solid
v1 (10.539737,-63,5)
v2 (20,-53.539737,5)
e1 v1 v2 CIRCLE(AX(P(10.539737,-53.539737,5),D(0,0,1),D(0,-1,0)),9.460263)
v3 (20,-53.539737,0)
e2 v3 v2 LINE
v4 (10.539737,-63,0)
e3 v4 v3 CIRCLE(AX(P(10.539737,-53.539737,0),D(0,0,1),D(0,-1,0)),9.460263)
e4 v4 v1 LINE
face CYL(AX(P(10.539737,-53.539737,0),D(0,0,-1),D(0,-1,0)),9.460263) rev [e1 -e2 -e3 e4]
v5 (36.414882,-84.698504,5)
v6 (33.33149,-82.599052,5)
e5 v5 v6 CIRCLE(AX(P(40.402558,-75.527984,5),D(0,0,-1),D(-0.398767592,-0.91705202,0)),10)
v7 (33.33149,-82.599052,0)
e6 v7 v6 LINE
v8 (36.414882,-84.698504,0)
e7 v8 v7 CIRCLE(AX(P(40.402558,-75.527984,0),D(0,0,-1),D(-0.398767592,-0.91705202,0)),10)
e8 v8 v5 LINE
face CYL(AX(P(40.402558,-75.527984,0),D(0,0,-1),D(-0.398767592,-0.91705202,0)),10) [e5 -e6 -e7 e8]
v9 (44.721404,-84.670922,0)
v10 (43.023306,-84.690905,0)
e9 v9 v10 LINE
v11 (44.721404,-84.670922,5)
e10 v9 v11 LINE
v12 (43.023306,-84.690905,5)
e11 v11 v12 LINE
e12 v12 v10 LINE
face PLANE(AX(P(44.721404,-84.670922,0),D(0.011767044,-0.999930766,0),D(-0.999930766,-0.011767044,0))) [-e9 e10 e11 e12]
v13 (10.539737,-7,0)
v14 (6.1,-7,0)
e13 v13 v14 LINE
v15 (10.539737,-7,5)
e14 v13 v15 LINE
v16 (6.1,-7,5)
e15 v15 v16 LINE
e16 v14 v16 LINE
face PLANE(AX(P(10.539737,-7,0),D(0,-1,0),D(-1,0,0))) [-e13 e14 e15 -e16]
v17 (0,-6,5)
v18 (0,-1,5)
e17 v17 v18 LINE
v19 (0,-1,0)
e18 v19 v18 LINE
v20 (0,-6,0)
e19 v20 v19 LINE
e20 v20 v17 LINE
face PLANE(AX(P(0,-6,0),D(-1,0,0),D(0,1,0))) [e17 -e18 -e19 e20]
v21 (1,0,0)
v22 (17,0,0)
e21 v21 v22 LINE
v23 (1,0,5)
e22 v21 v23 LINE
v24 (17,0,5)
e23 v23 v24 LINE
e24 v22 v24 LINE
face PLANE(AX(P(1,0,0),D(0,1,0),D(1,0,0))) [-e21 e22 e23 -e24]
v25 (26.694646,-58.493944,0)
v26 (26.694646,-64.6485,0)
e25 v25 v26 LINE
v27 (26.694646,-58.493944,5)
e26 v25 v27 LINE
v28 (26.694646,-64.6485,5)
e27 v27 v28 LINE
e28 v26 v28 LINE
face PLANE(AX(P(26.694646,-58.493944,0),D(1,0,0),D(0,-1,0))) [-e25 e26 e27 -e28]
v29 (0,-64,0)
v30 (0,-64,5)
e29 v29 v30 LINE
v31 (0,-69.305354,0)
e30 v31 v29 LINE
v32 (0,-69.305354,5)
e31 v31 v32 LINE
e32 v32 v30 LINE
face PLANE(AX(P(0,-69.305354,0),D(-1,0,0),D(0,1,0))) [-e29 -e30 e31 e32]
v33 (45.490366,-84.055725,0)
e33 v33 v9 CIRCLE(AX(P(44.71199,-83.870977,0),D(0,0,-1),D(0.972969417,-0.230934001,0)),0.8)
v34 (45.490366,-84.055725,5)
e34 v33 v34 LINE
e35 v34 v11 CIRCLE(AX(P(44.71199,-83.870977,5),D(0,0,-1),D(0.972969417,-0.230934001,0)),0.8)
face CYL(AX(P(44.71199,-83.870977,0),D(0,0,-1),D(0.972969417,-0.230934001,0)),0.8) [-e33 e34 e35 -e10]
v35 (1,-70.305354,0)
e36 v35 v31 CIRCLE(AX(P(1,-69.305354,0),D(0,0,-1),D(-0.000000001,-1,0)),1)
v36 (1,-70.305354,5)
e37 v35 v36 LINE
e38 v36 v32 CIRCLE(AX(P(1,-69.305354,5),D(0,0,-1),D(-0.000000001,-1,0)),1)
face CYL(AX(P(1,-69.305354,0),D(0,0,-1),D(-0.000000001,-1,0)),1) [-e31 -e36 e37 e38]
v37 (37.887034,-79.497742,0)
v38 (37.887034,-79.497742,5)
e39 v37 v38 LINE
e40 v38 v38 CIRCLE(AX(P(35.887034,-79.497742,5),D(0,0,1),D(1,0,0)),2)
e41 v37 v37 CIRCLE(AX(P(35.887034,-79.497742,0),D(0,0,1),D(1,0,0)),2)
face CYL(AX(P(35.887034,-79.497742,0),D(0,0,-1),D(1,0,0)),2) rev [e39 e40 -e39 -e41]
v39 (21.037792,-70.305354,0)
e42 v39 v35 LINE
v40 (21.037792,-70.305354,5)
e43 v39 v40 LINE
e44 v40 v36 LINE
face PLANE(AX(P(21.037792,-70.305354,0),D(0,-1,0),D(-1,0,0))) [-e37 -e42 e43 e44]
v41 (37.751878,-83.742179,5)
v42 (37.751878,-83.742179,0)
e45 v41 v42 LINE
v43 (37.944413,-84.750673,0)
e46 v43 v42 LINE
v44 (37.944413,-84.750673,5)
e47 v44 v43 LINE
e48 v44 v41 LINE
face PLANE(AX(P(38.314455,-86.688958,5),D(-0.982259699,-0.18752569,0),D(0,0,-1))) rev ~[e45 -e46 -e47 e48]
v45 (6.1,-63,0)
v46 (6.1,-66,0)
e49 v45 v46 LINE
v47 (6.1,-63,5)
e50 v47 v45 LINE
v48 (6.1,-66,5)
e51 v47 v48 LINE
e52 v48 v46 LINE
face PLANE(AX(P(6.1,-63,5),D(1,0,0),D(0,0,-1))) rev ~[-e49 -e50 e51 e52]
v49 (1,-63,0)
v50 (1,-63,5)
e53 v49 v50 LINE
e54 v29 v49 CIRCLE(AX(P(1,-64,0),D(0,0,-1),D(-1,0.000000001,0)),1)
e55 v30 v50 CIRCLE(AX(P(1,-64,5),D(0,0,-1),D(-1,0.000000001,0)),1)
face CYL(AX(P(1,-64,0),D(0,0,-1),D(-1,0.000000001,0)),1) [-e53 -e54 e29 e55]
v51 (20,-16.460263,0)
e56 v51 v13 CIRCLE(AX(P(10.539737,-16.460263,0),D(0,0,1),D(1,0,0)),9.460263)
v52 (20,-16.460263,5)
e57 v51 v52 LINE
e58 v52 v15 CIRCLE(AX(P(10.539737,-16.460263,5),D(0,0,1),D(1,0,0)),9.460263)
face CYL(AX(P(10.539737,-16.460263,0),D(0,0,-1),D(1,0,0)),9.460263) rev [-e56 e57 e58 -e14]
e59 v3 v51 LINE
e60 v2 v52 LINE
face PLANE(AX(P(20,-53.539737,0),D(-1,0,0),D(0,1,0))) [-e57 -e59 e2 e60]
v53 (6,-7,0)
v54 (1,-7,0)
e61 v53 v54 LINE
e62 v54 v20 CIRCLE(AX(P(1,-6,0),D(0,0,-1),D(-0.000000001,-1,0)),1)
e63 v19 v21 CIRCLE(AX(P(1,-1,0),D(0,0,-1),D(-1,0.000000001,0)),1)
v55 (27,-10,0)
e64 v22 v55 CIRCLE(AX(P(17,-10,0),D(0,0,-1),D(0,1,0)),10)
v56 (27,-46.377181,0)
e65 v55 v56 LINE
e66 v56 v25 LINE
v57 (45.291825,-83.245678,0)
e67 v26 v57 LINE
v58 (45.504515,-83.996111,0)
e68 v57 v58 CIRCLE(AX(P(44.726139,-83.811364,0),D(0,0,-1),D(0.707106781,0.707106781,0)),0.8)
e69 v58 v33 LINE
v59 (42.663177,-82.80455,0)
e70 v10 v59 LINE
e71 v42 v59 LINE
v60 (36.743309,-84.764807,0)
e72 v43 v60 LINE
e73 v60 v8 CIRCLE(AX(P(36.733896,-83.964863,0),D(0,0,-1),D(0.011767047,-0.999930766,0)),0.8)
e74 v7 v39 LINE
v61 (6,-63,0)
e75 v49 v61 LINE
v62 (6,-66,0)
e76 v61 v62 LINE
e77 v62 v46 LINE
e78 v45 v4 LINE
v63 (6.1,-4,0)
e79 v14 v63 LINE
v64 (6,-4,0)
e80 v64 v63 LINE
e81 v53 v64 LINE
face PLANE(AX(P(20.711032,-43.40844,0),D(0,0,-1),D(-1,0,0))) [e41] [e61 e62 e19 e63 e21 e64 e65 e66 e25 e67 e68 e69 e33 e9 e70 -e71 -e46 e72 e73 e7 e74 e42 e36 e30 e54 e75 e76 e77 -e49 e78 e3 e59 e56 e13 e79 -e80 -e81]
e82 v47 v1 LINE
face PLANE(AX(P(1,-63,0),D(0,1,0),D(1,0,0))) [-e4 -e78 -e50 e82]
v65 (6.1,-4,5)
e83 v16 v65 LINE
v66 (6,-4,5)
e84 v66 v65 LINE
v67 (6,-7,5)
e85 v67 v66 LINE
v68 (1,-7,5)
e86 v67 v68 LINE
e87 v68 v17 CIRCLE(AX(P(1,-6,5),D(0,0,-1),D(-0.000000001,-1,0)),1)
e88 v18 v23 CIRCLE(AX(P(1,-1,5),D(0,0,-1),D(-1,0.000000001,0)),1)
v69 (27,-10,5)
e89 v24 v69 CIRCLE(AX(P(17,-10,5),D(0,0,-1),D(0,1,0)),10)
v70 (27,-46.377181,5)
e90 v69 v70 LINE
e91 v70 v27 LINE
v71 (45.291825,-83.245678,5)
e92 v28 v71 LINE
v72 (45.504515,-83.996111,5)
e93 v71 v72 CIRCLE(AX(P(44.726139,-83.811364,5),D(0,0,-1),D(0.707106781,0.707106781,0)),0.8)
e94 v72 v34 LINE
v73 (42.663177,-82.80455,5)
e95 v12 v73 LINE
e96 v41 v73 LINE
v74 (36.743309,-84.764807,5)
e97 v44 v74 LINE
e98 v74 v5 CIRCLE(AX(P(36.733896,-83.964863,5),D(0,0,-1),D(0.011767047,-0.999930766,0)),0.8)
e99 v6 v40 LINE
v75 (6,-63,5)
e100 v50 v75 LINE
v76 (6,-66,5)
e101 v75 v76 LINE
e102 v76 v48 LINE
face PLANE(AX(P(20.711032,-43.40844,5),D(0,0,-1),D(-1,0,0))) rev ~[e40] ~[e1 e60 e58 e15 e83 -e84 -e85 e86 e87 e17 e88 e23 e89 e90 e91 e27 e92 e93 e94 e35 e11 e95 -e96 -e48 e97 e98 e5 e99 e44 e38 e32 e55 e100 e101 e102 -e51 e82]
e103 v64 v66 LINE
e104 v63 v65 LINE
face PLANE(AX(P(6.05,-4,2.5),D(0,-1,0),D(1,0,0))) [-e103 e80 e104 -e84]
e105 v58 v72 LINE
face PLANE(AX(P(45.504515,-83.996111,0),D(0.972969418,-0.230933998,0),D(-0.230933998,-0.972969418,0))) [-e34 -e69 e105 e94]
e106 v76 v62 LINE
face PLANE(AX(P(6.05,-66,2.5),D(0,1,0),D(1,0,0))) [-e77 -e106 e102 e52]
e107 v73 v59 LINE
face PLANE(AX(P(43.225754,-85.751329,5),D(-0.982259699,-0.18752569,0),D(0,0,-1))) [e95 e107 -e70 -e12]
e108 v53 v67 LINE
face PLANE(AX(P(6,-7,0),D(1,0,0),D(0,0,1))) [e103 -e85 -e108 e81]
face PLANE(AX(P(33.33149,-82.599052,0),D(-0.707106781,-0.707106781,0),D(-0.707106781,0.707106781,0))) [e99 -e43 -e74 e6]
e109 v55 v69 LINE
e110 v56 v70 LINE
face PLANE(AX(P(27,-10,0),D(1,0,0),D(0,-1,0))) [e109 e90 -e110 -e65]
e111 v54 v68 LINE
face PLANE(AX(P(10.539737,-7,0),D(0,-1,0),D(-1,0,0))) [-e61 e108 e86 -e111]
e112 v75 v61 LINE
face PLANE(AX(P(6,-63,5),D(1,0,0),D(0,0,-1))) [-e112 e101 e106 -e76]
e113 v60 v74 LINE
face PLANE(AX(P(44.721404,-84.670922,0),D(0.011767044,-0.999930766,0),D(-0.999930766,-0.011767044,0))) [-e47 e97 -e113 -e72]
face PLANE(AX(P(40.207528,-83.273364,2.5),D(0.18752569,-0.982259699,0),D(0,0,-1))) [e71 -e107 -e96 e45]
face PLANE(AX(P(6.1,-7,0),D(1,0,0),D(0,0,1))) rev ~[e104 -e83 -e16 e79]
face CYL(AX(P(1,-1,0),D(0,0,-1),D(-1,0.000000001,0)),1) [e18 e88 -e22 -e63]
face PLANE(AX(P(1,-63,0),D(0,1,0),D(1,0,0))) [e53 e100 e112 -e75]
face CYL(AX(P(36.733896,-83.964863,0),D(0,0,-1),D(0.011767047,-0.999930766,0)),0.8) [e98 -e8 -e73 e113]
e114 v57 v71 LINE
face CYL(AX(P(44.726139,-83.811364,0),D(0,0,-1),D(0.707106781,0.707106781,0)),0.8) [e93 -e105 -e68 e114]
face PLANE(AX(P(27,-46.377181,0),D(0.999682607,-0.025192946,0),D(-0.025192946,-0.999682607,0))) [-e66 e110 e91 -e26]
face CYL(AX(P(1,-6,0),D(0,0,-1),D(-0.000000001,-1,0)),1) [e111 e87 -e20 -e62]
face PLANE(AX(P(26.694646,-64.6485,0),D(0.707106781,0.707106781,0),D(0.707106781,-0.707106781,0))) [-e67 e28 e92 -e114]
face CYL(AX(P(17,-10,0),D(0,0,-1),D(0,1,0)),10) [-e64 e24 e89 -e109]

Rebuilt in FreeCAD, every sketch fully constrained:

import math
import FreeCAD as App
import Part
import Sketcher
from FreeCAD import Vector
Q = App.Units.Quantity


def add_polygon(sketch, points):
    """Adds a closed chain of lines whose ends are joined by coincident constraints."""
    first, n = sketch.GeometryCount, len(points)
    for a, b in zip(points, points[1:] + points[:1]):
        sketch.addGeometry(Part.LineSegment(App.Vector(*a, 0), App.Vector(*b, 0)), False)
    for i in range(n):
        sketch.addConstraint(Sketcher.Constraint("Coincident", first + i, 2, first + (i + 1) % n, 1))

doc = App.newDocument("Part")
body = doc.addObject("PartDesign::Body", "Body")

# Sketch on XY plane
sketch1 = body.newObject("Sketcher::SketchObject", "Sketch")
sketch1.AttachmentSupport = (doc.getObject("XY_Plane"), [""])
sketch1.MapMode = "FlatFace"
sketch1.addGeometry([
    Part.LineSegment(Vector(17, 0, 0), Vector(1, 0, 0)),  # 0
    Part.ArcOfCircle(Part.Circle(Vector(1, -1, 0), Vector(0, 0, 1), 1), math.radians(90), math.radians(180)),  # 1
    Part.LineSegment(Vector(0, -1, 0), Vector(0, -6, 0)),  # 2
    Part.ArcOfCircle(Part.Circle(Vector(1, -6, 0), Vector(0, 0, 1), 1), math.radians(-180), math.radians(-90)),  # 3
    Part.LineSegment(Vector(1, -7, 0), Vector(10.539737, -7, 0)),  # 4
    Part.ArcOfCircle(Part.Circle(Vector(10.539737, -16.460263, 0), Vector(0, 0, 1), 9.460263), math.radians(0), math.radians(90)),  # 5
    Part.LineSegment(Vector(20, -16.460263, 0), Vector(20, -53.539737, 0)),  # 6
    Part.ArcOfCircle(Part.Circle(Vector(10.539737, -53.539737, 0), Vector(0, 0, 1), 9.460263), math.radians(-90), math.radians(0)),  # 7
    Part.LineSegment(Vector(10.539737, -63, 0), Vector(1, -63, 0)),  # 8
    Part.ArcOfCircle(Part.Circle(Vector(1, -64, 0), Vector(0, 0, 1), 1), math.radians(90), math.radians(180)),  # 9
    Part.LineSegment(Vector(0, -64, 0), Vector(0, -69.305354, 0)),  # 10
    Part.ArcOfCircle(Part.Circle(Vector(1, -69.305354, 0), Vector(0, 0, 1), 1), math.radians(-180), math.radians(-90)),  # 11
    Part.LineSegment(Vector(1, -70.305354, 0), Vector(21.037792, -70.305354, 0)),  # 12
    Part.LineSegment(Vector(21.037792, -70.305354, 0), Vector(33.33149, -82.599052, 0)),  # 13
    Part.ArcOfCircle(Part.Circle(Vector(40.402558, -75.527984, 0), Vector(0, 0, 1), 10), math.radians(-135), math.radians(-113.501157)),  # 14
    Part.ArcOfCircle(Part.Circle(Vector(36.733896, -83.964863, 0), Vector(0, 0, 1), 0.8), math.radians(-113.501158), math.radians(-89.325782)),  # 15
    Part.LineSegment(Vector(36.743309, -84.764807, 0), Vector(44.721404, -84.670922, 0)),  # 16
    Part.ArcOfCircle(Part.Circle(Vector(44.71199, -83.870977, 0), Vector(0, 0, 1), 0.8), math.radians(-89.325782), math.radians(-13.352067)),  # 17
    Part.LineSegment(Vector(45.490366, -84.055725, 0), Vector(45.504515, -83.996111, 0)),  # 18
    Part.ArcOfCircle(Part.Circle(Vector(44.726139, -83.811364, 0), Vector(0, 0, 1), 0.8), math.radians(-13.352067), math.radians(45)),  # 19
    Part.LineSegment(Vector(45.291825, -83.245678, 0), Vector(26.694646, -64.6485, 0)),  # 20
    Part.LineSegment(Vector(26.694646, -64.6485, 0), Vector(26.694646, -58.493944, 0)),  # 21
    Part.LineSegment(Vector(26.694646, -58.493944, 0), Vector(27, -46.377181, 0)),  # 22
    Part.LineSegment(Vector(27, -46.377181, 0), Vector(27, -10, 0)),  # 23
    Part.ArcOfCircle(Part.Circle(Vector(17, -10, 0), Vector(0, 0, 1), 10), math.radians(0), math.radians(90)),  # 24
    Part.Circle(Vector(35.887034, -79.497742, 0), Vector(0, 0, 1), 2),  # 25
], False)
sketch1.addConstraint([
    Sketcher.Constraint("Tangent", 0, 2, 1, 1),
    Sketcher.Constraint("Tangent", 1, 2, 2, 1),
    Sketcher.Constraint("Tangent", 2, 2, 3, 1),
    Sketcher.Constraint("Tangent", 3, 2, 4, 1),
    Sketcher.Constraint("Tangent", 4, 2, 5, 2),
    Sketcher.Constraint("Tangent", 5, 1, 6, 1),
    Sketcher.Constraint("Tangent", 6, 2, 7, 2),
    Sketcher.Constraint("Tangent", 7, 1, 8, 1),
    Sketcher.Constraint("Tangent", 8, 2, 9, 1),
    Sketcher.Constraint("Tangent", 9, 2, 10, 1),
    Sketcher.Constraint("Tangent", 10, 2, 11, 1),
    Sketcher.Constraint("Tangent", 11, 2, 12, 1),
    Sketcher.Constraint("Coincident", 12, 2, 13, 1),
    Sketcher.Constraint("Tangent", 13, 2, 14, 1),
    Sketcher.Constraint("Tangent", 14, 2, 15, 1),
    Sketcher.Constraint("Tangent", 15, 2, 16, 1),
    Sketcher.Constraint("Tangent", 16, 2, 17, 1),
    Sketcher.Constraint("Tangent", 17, 2, 18, 1),
    Sketcher.Constraint("Tangent", 18, 2, 19, 1),
    Sketcher.Constraint("Tangent", 19, 2, 20, 1),
    Sketcher.Constraint("Coincident", 20, 2, 21, 1),
    Sketcher.Constraint("Coincident", 21, 2, 22, 1),
    Sketcher.Constraint("Coincident", 22, 2, 23, 1),
    Sketcher.Constraint("Tangent", 23, 2, 24, 1),
    Sketcher.Constraint("Tangent", 24, 2, 0, 1),
    Sketcher.Constraint("Horizontal", 0),
    Sketcher.Constraint("Vertical", 2),
    Sketcher.Constraint("Horizontal", 4),
    Sketcher.Constraint("Vertical", 6),
    Sketcher.Constraint("Horizontal", 8),
    Sketcher.Constraint("Vertical", 10),
    Sketcher.Constraint("Horizontal", 12),
    Sketcher.Constraint("Vertical", 21),
    Sketcher.Constraint("Vertical", 23),
    Sketcher.Constraint("Equal", 1, 3),
    Sketcher.Constraint("Equal", 5, 7),
    Sketcher.Constraint("Equal", 3, 9),
    Sketcher.Constraint("Equal", 9, 11),
    Sketcher.Constraint("Equal", 15, 17),
    Sketcher.Constraint("Equal", 17, 19),
    Sketcher.Constraint("Equal", 14, 24),
    Sketcher.Constraint("PointOnObject", 0, 2, -1),
    Sketcher.Constraint("PointOnObject", 1, 2, -2),
    Sketcher.Constraint("PointOnObject", 9, 2, -2),
    Sketcher.Constraint("Parallel", 13, 20),
    Sketcher.Constraint("Diameter", 25, Q("4 mm")),
    Sketcher.Constraint("Radius", 1, Q("1 mm")),
    Sketcher.Constraint("Radius", 14, Q("10 mm")),
    Sketcher.Constraint("Radius", 15, Q("0.8 mm")),
    Sketcher.Constraint("DistanceX", 0, 2, 0, 1, Q("16 mm")),
    Sketcher.Constraint("DistanceY", 2, 2, 2, 1, Q("5 mm")),
    Sketcher.Constraint("Angle", 13, Q("-45 deg")),
    Sketcher.Constraint("DistanceY", 9, 3, -1, 1, Q("64 mm")),
    Sketcher.Constraint("DistanceX", -1, 1, 5, 1, Q("20 mm")),
    Sketcher.Constraint("Radius", 5, Q("9.460263 mm")),
    Sketcher.Constraint("DistanceX", 12, 1, 12, 2, Q("20.037792 mm")),
    Sketcher.Constraint("DistanceY", 23, 1, 23, 2, Q("36.377181 mm")),
    Sketcher.Constraint("DistanceY", 20, 2, -1, 1, Q("64.6485 mm")),
    Sketcher.Constraint("DistanceY", 15, 3, 5, 3, Q("67.5046 mm")),
    Sketcher.Constraint("DistanceY", 15, 3, 19, 3, Q("0.153499 mm")),
    Sketcher.Constraint("DistanceX", 13, 2, 17, 3, Q("11.3805 mm")),
    Sketcher.Constraint("DistanceY", 17, 3, 19, 2, Q("0.625299 mm")),
    Sketcher.Constraint("Distance", 18, Q("0.06127 mm")),
    Sketcher.Constraint("Distance", 22, Q("12.120611 mm")),
    Sketcher.Constraint("DistanceY", 10, 2, 10, 1, Q("5.305354 mm")),
    Sketcher.Constraint("DistanceY", 21, 1, 21, 2, Q("6.154555 mm")),
    Sketcher.Constraint("DistanceX", 25, 3, 15, 3, Q("0.846861 mm")),
    Sketcher.Constraint("DistanceY", 15, 3, 25, 3, Q("4.467121 mm")),
])
pad1 = body.newObject("PartDesign::Pad", "Pad")
pad1.Profile = sketch1
pad1.Length = 5

# Sketch on XZ plane
sketch2 = body.newObject("Sketcher::SketchObject", "Sketch001")
sketch2.AttachmentSupport = (doc.getObject("XZ_Plane"), [""])
sketch2.MapMode = "FlatFace"
sketch2.AttachmentOffset = App.Placement(Vector(0, 0, 63), App.Rotation())
add_polygon(sketch2, [(6, 0), (6, 5), (6.1, 5), (6.1, 0)])  # lines 0-3
sketch2.addConstraint([
    Sketcher.Constraint("Vertical", 0),
    Sketcher.Constraint("Horizontal", 1),
    Sketcher.Constraint("Vertical", 2),
    Sketcher.Constraint("Horizontal", 3),
    Sketcher.Constraint("PointOnObject", 2, 2, -1),
    Sketcher.Constraint("DistanceY", 0, 1, 0, 2, Q("5 mm")),
    Sketcher.Constraint("DistanceX", 1, 1, 1, 2, Q("0.1 mm")),
    Sketcher.Constraint("DistanceX", -1, 1, 0, 2, Q("6 mm")),
])
pocket1 = body.newObject("PartDesign::Pocket", "Pocket")
pocket1.Profile = sketch2
pocket1.Length = 3
pocket1.Reversed = True

# Sketch on XZ plane
sketch3 = body.newObject("Sketcher::SketchObject", "Sketch002")
sketch3.AttachmentSupport = (doc.getObject("XZ_Plane"), [""])
sketch3.MapMode = "FlatFace"
sketch3.AttachmentOffset = App.Placement(Vector(0, 0, 7), App.Rotation())
add_polygon(sketch3, [(6, 5), (6, 0), (6.1, 0), (6.1, 5)])  # lines 0-3
sketch3.addConstraint([
    Sketcher.Constraint("Vertical", 0),
    Sketcher.Constraint("Horizontal", 1),
    Sketcher.Constraint("Vertical", 2),
    Sketcher.Constraint("Horizontal", 3),
    Sketcher.Constraint("PointOnObject", 0, 2, -1),
    Sketcher.Constraint("DistanceY", 0, 2, 0, 1, Q("5 mm")),
    Sketcher.Constraint("DistanceX", 1, 1, 1, 2, Q("0.1 mm")),
    Sketcher.Constraint("DistanceX", -1, 1, 0, 2, Q("6 mm")),
])
pocket2 = body.newObject("PartDesign::Pocket", "Pocket001")
pocket2.Profile = sketch3
pocket2.Length = 3

# Sketch on an angled plane
sketch4 = body.newObject("Sketcher::SketchObject", "Sketch003")
sketch4.Placement = App.Placement(Vector(17.315375, -90.697945, 0), App.Rotation(Vector(0, 0, -1), Vector(0.982259699, 0.18752569, 0), Vector(0.18752569, -0.982259699, 0), "ZXY"))
add_polygon(sketch4, [(-5, 26.378339), (-5, 21.378339), (0, 21.378339), (0, 26.378339)])  # lines 0-3
sketch4.addConstraint([
    Sketcher.Constraint("Vertical", 0),
    Sketcher.Constraint("Horizontal", 1),
    Sketcher.Constraint("Vertical", 2),
    Sketcher.Constraint("Horizontal", 3),
    Sketcher.Constraint("PointOnObject", 1, 2, -2),
    Sketcher.Constraint("Equal", 3, 0),
    Sketcher.Constraint("DistanceX", 1, 1, 1, 2, Q("5 mm")),
    Sketcher.Constraint("DistanceY", -1, 1, 0, 2, Q("21.378339 mm")),
])
pocket3 = body.newObject("PartDesign::Pocket", "Pocket002")
pocket3.Profile = sketch4
pocket3.Length = 3

doc.recompute()
